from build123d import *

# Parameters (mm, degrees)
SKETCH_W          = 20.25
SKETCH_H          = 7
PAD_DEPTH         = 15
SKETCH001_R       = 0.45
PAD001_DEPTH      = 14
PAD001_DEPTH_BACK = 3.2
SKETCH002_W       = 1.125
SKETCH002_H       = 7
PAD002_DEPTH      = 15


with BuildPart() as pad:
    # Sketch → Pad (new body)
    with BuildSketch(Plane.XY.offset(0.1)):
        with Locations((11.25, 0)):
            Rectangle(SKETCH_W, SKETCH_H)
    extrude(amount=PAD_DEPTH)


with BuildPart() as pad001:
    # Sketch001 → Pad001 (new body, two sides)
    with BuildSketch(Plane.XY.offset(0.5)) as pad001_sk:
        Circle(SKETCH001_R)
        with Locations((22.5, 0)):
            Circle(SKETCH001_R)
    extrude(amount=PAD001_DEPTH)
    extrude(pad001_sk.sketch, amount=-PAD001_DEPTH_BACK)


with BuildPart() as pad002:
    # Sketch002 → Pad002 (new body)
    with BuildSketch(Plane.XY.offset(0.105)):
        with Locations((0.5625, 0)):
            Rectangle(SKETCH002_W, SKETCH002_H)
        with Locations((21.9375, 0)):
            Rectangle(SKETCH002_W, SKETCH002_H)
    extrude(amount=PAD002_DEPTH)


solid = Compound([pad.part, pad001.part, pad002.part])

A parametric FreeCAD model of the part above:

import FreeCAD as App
import Part
import Sketcher
from FreeCAD import Vector


def add_polygon(sketch, points):
    """Adds a closed chain of lines whose ends are joined by coincident constraints."""
    first, n = sketch.GeometryCount, len(points)
    for a, b in zip(points, points[1:] + points[:1]):
        sketch.addGeometry(Part.LineSegment(App.Vector(*a, 0), App.Vector(*b, 0)), False)
    for i in range(n):
        sketch.addConstraint(Sketcher.Constraint("Coincident", first + i, 2, first + (i + 1) % n, 1))

doc = App.newDocument("Part")
body = doc.addObject("PartDesign::Body", "Body")

# Sketch on XY plane
sketch1 = body.newObject("Sketcher::SketchObject", "Sketch")
sketch1.AttachmentSupport = (doc.getObject("XY_Plane"), [""])
sketch1.MapMode = "FlatFace"
sketch1.AttachmentOffset = App.Placement(Vector(0, 0, 0.1), App.Rotation())
add_polygon(sketch1, [(1, 4), (1, -4), (21, -4), (21, 4)])  # lines 0-3
sketch1.addConstraint([
    Sketcher.Constraint("Vertical", 0),
    Sketcher.Constraint("Horizontal", 1),
    Sketcher.Constraint("Vertical", 2),
    Sketcher.Constraint("Horizontal", 3),
    Sketcher.Constraint("DistanceY", 0, 2, 0, 1, 7.0),
    Sketcher.Constraint("DistanceX", 1, 1, 1, 2, 20.25),
    Sketcher.Constraint("DistanceY", 0, 2, -1, 1, 3.5),
    Sketcher.Constraint("DistanceX", -1, 1, 0, 2, 1.125),
])
pad1 = body.newObject("PartDesign::Pad", "Pad")
pad1.Profile = sketch1
pad1.Length = 15
body2 = doc.addObject("PartDesign::Body", "Body001")
body2.AllowCompound = True

# Sketch on XY plane
sketch2 = body2.newObject("Sketcher::SketchObject", "Sketch001")
sketch2.AttachmentSupport = (doc.getObject("XY_Plane001"), [""])
sketch2.MapMode = "FlatFace"
sketch2.AttachmentOffset = App.Placement(Vector(0, 0, 0.5), App.Rotation())
sketch2.addGeometry([
    Part.Circle(Vector(0, 0, 0), Vector(0, 0, 1), 0.45),
    Part.Circle(Vector(22.5, 0, 0), Vector(0, 0, 1), 0.45),
], False)
sketch2.addConstraint([
    Sketcher.Constraint("Coincident", 0, 3, -1, 1),
    Sketcher.Constraint("Equal", 0, 1),
    Sketcher.Constraint("PointOnObject", 1, 3, -1),
    Sketcher.Constraint("Diameter", 0, 0.9),
    Sketcher.Constraint("DistanceX", -1, 1, 1, 3, 22.5),
])
pad2 = body2.newObject("PartDesign::Pad", "Pad001")
pad2.Profile = sketch2
pad2.Type = "TwoLengths"
pad2.Length = 14
pad2.Length2 = 3.2
body3 = doc.addObject("PartDesign::Body", "Body002")
body3.AllowCompound = True

# Sketch on XY plane
sketch3 = body3.newObject("Sketcher::SketchObject", "Sketch002")
sketch3.AttachmentSupport = (doc.getObject("XY_Plane002"), [""])
sketch3.MapMode = "FlatFace"
sketch3.AttachmentOffset = App.Placement(Vector(0, 0, 0.105), App.Rotation())
add_polygon(sketch3, [(0, 3.5), (0, -3.5), (1.1, -3.5), (1.1, 3.5)])  # lines 0-3
add_polygon(sketch3, [(21.4, 3.5), (21.4, -3.5), (22.5, -3.5), (22.5, 3.5)])  # lines 4-7
sketch3.addConstraint([
    Sketcher.Constraint("Vertical", 0),
    Sketcher.Constraint("Horizontal", 1),
    Sketcher.Constraint("Vertical", 2),
    Sketcher.Constraint("Horizontal", 3),
    Sketcher.Constraint("Vertical", 4),
    Sketcher.Constraint("Horizontal", 5),
    Sketcher.Constraint("Vertical", 6),
    Sketcher.Constraint("Horizontal", 7),
    Sketcher.Constraint("Symmetric", 0, 2, 3, 2, -1, 1),
    Sketcher.Constraint("Horizontal", 1, 2, 4, 2),
    Sketcher.Constraint("Horizontal", 3, 2, 6, 2),
    Sketcher.Constraint("Equal", 3, 5),
    Sketcher.Constraint("DistanceY", 0, 2, 0, 1, 7.0),
    Sketcher.Constraint("DistanceX", -1, 1, 5, 2, 22.5),
    Sketcher.Constraint("DistanceX", 1, 1, 1, 2, 1.125),
])
pad3 = body3.newObject("PartDesign::Pad", "Pad002")
pad3.Profile = sketch3
pad3.Length = 15

doc.recompute()
